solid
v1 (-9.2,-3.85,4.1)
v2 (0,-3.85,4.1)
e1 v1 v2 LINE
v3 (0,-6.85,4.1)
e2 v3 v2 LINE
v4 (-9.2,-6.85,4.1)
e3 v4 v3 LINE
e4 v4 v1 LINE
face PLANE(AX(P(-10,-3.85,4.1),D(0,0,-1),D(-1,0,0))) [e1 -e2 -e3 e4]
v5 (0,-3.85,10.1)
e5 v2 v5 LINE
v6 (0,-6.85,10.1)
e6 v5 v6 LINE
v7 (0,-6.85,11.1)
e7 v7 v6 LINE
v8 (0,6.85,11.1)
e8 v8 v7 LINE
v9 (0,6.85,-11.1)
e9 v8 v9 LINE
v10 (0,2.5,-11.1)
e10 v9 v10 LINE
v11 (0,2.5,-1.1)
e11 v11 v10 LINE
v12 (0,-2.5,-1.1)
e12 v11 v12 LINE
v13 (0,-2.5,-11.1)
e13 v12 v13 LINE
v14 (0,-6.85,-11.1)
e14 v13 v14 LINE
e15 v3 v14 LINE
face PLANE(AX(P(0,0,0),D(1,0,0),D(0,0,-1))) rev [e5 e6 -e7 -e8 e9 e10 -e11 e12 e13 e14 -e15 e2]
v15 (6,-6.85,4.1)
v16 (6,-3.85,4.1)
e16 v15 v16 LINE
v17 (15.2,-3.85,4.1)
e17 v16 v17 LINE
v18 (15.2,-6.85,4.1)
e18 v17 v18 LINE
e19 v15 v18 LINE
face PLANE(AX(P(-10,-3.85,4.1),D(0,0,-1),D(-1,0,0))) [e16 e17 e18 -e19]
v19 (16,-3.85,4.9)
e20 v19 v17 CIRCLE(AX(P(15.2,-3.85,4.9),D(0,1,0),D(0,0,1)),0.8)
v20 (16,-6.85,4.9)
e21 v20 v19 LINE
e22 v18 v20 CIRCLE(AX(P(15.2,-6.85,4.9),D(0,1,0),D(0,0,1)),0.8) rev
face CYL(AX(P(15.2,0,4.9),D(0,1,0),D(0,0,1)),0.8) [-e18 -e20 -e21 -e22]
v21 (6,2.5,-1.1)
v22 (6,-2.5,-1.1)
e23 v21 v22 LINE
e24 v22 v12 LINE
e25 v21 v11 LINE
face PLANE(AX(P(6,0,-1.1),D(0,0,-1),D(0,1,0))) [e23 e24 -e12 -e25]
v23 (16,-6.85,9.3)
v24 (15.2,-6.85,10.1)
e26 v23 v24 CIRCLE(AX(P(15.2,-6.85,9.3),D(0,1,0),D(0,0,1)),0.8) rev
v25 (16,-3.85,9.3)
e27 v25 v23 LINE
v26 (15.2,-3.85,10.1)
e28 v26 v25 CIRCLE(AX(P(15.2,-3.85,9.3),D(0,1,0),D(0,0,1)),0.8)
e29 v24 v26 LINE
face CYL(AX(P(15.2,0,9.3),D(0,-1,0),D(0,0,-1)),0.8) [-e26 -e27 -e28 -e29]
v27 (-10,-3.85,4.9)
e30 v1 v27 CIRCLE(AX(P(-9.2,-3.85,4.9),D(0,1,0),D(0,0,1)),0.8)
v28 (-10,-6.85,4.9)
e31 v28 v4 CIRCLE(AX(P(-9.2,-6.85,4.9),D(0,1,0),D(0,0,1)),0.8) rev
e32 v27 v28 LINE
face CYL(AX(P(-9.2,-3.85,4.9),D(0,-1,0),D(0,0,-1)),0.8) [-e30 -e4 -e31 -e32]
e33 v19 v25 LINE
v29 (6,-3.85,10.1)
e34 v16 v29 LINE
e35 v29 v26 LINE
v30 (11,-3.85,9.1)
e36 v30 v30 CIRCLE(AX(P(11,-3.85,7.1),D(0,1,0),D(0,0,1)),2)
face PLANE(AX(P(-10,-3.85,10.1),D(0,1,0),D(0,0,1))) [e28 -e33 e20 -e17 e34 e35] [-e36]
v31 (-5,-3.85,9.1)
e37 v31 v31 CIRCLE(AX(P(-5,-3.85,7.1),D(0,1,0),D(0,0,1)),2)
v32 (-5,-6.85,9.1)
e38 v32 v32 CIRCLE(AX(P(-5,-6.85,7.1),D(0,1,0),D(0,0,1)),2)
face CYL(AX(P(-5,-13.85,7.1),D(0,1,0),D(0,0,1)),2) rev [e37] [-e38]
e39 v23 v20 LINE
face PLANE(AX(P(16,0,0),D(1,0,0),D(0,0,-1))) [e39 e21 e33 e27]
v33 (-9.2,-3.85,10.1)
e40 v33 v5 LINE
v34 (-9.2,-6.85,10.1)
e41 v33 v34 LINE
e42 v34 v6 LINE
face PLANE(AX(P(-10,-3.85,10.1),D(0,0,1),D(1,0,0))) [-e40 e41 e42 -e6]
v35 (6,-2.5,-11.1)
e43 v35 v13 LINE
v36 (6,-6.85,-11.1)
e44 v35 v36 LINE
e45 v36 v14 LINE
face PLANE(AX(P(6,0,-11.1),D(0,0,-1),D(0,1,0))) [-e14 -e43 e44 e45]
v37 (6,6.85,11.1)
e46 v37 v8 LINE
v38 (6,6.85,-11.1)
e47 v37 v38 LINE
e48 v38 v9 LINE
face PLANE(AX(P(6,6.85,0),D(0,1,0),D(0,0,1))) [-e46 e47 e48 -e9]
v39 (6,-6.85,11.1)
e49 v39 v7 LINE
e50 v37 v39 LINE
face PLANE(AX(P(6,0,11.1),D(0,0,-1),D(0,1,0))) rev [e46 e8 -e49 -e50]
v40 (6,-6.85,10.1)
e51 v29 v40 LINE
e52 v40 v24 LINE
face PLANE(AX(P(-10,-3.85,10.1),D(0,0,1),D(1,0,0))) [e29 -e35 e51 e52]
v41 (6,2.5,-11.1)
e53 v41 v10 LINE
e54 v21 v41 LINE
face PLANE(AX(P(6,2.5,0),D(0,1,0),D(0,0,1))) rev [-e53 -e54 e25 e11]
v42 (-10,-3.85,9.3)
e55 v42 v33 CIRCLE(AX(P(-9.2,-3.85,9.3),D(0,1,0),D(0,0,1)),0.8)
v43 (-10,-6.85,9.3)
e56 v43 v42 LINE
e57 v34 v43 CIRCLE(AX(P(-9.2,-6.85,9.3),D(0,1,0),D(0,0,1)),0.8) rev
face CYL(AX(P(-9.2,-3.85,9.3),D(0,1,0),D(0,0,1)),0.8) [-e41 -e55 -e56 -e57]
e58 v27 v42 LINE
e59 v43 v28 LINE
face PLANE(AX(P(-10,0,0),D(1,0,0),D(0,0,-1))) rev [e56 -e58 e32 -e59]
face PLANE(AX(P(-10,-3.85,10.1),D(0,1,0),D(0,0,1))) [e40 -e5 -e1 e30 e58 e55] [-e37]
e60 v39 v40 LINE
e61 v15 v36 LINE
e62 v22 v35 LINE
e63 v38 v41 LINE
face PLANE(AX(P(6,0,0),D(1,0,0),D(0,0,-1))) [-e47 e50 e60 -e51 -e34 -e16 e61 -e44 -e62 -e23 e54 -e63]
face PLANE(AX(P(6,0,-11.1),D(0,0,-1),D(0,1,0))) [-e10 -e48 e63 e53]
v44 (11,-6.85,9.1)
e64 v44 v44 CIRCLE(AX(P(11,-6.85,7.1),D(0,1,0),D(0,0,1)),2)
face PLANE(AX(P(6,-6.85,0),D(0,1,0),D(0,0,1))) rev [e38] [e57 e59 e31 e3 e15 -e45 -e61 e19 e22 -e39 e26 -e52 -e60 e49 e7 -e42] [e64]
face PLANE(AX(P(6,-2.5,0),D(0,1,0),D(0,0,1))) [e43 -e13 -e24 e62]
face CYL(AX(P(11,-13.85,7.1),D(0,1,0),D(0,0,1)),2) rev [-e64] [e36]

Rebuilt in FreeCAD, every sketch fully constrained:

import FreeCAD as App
import Part
import Sketcher

V = App.Vector
Q = App.Units.Quantity


def edges_at(feature, points):
    """Names of the edges that pass closest to the given points."""
    edges = feature.Shape.Edges
    near = lambda p: min(range(len(edges)), key=lambda i: edges[i].distToShape(Part.Vertex(*p))[0])
    return sorted({f"Edge{near(p) + 1}" for p in points})


def add_polygon(sketch, points):
    """Adds a closed chain of lines whose ends are joined by coincident constraints."""
    first, n = sketch.GeometryCount, len(points)
    for a, b in zip(points, points[1:] + points[:1]):
        sketch.addGeometry(Part.LineSegment(App.Vector(*a, 0), App.Vector(*b, 0)), False)
    for i in range(n):
        sketch.addConstraint(Sketcher.Constraint("Coincident", first + i, 2, first + (i + 1) % n, 1))

doc = App.newDocument("Part")
body = doc.addObject("PartDesign::Body", "Body")

# Sketch on YZ plane
sketch1 = doc.addObject("Sketcher::SketchObject", "Sketch")
body.addObject(sketch1)
sketch1.AttachmentSupport = (doc.YZ_Plane, [""])
sketch1.MapMode = "FlatFace"
add_polygon(sketch1, [(6.8, -11.1), (6.8, 11.1), (-6.8, 11.1), (-6.8, -11.1), (-2.5, -11.1), (-2.5, -1.1), (2.5, -1.1), (2.5, -11.1)])  # lines 0-7
sketch1.addConstraint([
    Sketcher.Constraint("Vertical", 0),
    Sketcher.Constraint("Horizontal", 1),
    Sketcher.Constraint("Vertical", 2),
    Sketcher.Constraint("Horizontal", 3),
    Sketcher.Constraint("Vertical", 4),
    Sketcher.Constraint("Horizontal", 5),
    Sketcher.Constraint("Vertical", 6),
    Sketcher.Constraint("Horizontal", 7),
    Sketcher.Constraint("Symmetric", 0, 2, 2, 2, -1, 1),
    Sketcher.Constraint("Symmetric", 3, 2, 6, 2, -2),
    Sketcher.Constraint("DistanceX", 5, 1, 5, 2, Q("5 mm")),
    Sketcher.Constraint("DistanceY", 4, 1, 4, 2, Q("10 mm")),
    Sketcher.Constraint("DistanceX", 1, 2, 1, 1, Q("13.7 mm")),
    Sketcher.Constraint("DistanceY", 0, 1, 0, 2, Q("22.2 mm")),
])
pad1 = doc.addObject("PartDesign::Pad", "Pad")
body.addObject(pad1)
pad1.Profile = sketch1
pad1.Length = 6

# Sketch on YZ plane
sketch2 = doc.addObject("Sketcher::SketchObject", "Sketch001")
body.addObject(sketch2)
sketch2.AttachmentSupport = (doc.YZ_Plane, [""])
sketch2.MapMode = "FlatFace"
sketch2.AttachmentOffset = App.Placement(V(0, 0, 6), App.Rotation())
add_polygon(sketch2, [(-3.9, 10.1), (-6.8, 10.1), (-6.8, 4.1), (-3.9, 4.1)])  # lines 0-3
sketch2.addConstraint([
    Sketcher.Constraint("Horizontal", 0),
    Sketcher.Constraint("Vertical", 1),
    Sketcher.Constraint("Horizontal", 2),
    Sketcher.Constraint("Vertical", 3),
    Sketcher.Constraint("DistanceX", 0, 2, 0, 1, Q("3 mm")),
    Sketcher.Constraint("DistanceY", 1, 2, 1, 1, Q("6 mm")),
    Sketcher.Constraint("DistanceY", -1, 1, 0, 2, Q("10.1 mm")),
    Sketcher.Constraint("DistanceX", 0, 2, -1, 1, Q("6.85 mm")),
])
pad2 = doc.addObject("PartDesign::Pad", "Pad001")
body.addObject(pad2)
pad2.Profile = sketch2
pad2.Type = "TwoLengths"
pad2.Length = 10
pad2.Length2 = 16

# Sketch on XZ plane
sketch3 = doc.addObject("Sketcher::SketchObject", "Sketch002")
body.addObject(sketch3)
sketch3.AttachmentSupport = (doc.XZ_Plane, [""])
sketch3.MapMode = "FlatFace"
sketch3.AttachmentOffset = App.Placement(V(0, 0, 3.85), App.Rotation())
sketch3.addGeometry([
    Part.Circle(V(11, 7.1, 0), V(0, 0, 1), 2),
    Part.Circle(V(-5, 7.1, 0), V(0, 0, 1), 2),
], False)
sketch3.addConstraint([
    Sketcher.Constraint("Equal", 0, 1),
    Sketcher.Constraint("Horizontal", 0, 3, 1, 3),
    Sketcher.Constraint("Diameter", 0, Q("4 mm")),
    Sketcher.Constraint("DistanceX", -1, 1, 0, 3, Q("11 mm")),
    Sketcher.Constraint("DistanceX", 1, 3, -1, 1, Q("5 mm")),
    Sketcher.Constraint("DistanceY", -1, 1, 0, 3, Q("7.1 mm")),
])
pocket1 = doc.addObject("PartDesign::Pocket", "Pocket")
body.addObject(pocket1)
pocket1.Profile = sketch3
pocket1.Length = 10
pocket1.Reversed = True
doc.recompute()

fillet = doc.addObject("PartDesign::Fillet", "Fillet")
body.addObject(fillet)
fillet.Base = (pocket1, edges_at(pocket1, [
    (-10, -5.35, 4.1),
    (-10, -5.35, 10.1),
    (16, -5.35, 4.1),
    (16, -5.35, 10.1),
]))
fillet.Radius = 0.8

doc.recompute()
